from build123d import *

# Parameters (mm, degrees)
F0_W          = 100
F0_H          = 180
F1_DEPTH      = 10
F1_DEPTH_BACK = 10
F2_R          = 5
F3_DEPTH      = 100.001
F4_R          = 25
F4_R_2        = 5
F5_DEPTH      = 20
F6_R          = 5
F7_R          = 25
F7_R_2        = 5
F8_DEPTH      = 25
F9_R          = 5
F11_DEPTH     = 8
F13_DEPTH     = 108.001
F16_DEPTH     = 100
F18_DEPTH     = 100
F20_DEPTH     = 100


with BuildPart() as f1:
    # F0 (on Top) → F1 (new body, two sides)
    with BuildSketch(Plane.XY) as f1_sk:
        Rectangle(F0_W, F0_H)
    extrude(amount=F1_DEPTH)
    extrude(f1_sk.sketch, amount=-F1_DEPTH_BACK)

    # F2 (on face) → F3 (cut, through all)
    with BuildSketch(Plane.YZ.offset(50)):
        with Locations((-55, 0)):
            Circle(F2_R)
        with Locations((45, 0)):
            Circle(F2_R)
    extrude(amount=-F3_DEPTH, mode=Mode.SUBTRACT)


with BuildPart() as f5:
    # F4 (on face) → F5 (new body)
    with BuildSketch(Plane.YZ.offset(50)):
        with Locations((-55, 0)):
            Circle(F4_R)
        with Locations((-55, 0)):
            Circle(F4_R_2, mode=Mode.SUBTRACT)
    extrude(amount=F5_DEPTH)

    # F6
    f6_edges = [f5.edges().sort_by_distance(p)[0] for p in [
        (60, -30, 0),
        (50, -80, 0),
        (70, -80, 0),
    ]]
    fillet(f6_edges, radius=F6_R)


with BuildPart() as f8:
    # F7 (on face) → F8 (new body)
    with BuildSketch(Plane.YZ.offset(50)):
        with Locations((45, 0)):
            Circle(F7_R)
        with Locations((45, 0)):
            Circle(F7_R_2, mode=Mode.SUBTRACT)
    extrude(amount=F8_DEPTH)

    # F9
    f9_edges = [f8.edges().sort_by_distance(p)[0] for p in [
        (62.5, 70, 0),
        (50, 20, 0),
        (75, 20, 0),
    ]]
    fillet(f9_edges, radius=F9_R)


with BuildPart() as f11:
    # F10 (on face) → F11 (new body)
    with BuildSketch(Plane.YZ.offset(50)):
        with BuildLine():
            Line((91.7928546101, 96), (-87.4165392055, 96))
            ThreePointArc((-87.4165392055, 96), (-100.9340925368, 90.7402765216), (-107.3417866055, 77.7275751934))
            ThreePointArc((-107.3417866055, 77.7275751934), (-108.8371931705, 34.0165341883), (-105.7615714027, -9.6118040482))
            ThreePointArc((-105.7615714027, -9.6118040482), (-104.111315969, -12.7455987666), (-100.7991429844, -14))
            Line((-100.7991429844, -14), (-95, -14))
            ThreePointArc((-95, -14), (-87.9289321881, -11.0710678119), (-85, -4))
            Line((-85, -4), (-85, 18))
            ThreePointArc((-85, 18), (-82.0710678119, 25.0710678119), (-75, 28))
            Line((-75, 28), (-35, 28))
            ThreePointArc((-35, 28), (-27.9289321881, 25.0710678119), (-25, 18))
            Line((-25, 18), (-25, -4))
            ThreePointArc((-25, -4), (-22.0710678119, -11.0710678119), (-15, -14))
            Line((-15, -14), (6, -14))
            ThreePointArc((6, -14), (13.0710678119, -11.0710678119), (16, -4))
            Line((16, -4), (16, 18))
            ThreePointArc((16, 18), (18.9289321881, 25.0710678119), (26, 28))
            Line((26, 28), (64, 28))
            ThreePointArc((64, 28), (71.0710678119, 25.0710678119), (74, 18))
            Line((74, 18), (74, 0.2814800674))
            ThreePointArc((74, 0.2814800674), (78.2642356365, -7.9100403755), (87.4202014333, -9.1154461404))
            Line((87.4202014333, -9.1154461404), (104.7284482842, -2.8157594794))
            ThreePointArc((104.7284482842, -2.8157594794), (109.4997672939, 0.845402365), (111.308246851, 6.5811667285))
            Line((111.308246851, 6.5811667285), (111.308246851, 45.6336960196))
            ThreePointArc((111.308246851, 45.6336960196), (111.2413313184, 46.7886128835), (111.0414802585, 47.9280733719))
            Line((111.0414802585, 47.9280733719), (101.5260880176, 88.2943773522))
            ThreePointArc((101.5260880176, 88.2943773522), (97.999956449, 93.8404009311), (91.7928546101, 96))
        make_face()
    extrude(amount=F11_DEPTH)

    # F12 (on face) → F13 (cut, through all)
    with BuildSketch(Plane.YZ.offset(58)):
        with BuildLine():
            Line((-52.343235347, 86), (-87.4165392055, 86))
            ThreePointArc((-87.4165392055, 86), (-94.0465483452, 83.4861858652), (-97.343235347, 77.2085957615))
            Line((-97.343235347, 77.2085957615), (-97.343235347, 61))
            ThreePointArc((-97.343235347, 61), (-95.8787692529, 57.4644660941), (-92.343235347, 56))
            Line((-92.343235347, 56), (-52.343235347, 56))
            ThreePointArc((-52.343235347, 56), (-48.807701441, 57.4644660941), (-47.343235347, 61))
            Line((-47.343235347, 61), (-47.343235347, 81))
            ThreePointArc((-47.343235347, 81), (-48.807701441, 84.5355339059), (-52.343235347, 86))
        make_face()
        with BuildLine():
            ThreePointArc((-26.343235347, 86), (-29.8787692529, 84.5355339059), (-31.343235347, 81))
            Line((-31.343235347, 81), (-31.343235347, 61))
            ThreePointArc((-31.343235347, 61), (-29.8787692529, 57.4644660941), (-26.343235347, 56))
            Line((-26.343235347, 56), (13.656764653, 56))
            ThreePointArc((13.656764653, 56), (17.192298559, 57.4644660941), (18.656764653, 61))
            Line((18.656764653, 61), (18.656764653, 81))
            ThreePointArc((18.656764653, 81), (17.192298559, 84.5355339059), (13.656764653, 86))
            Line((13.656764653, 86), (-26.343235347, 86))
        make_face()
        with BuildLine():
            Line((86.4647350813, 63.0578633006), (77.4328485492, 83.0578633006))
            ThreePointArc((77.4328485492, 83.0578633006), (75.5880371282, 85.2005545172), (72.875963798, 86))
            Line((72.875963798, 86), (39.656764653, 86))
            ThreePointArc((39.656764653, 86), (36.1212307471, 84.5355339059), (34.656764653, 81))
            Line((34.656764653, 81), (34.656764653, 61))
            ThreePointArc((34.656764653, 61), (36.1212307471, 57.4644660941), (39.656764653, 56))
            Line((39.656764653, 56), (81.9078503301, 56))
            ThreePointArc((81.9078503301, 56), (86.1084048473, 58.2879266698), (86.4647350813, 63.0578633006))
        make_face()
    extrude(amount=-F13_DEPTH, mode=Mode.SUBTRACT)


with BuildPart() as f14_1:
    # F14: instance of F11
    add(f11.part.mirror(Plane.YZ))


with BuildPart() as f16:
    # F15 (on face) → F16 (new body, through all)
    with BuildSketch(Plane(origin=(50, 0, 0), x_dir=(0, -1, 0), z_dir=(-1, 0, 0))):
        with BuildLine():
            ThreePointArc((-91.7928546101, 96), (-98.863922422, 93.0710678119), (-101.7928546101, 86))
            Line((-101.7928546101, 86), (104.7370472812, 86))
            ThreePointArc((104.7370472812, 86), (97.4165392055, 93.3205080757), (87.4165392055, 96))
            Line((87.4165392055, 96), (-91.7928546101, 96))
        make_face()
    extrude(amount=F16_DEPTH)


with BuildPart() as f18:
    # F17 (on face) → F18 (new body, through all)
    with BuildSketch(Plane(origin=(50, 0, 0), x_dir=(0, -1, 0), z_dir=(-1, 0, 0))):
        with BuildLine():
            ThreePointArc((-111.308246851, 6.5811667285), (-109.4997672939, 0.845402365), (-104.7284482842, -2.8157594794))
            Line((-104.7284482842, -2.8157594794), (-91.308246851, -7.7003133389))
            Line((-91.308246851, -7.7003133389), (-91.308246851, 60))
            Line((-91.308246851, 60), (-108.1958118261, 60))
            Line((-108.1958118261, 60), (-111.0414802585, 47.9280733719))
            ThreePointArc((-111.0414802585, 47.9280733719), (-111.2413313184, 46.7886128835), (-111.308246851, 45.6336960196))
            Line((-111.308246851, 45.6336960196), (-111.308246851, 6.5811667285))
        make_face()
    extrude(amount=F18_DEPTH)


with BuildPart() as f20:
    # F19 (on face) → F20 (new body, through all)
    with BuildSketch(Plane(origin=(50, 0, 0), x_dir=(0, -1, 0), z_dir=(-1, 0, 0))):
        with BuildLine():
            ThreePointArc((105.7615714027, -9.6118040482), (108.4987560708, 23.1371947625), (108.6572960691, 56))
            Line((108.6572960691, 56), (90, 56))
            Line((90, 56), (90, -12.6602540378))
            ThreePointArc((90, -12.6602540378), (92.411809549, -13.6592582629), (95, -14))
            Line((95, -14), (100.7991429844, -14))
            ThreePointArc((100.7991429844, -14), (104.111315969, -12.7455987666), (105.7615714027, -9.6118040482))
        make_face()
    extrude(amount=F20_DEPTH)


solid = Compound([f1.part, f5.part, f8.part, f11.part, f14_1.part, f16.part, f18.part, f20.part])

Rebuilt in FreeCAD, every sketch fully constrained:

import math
import FreeCAD as App
import Part
import Sketcher

V = App.Vector
Q = App.Units.Quantity


def edges_at(feature, points):
    """Names of the edges that pass closest to the given points."""
    edges = feature.Shape.Edges
    near = lambda p: min(range(len(edges)), key=lambda i: edges[i].distToShape(Part.Vertex(*p))[0])
    return sorted({f"Edge{near(p) + 1}" for p in points})


def add_polygon(sketch, points):
    """Adds a closed chain of lines whose ends are joined by coincident constraints."""
    first, n = sketch.GeometryCount, len(points)
    for a, b in zip(points, points[1:] + points[:1]):
        sketch.addGeometry(Part.LineSegment(App.Vector(*a, 0), App.Vector(*b, 0)), False)
    for i in range(n):
        sketch.addConstraint(Sketcher.Constraint("Coincident", first + i, 2, first + (i + 1) % n, 1))

doc = App.newDocument("Part")
body = doc.addObject("PartDesign::Body", "Body")

sketch1 = body.newObject("Sketcher::SketchObject", "Sketch")
sketch1.AttachmentSupport = (doc.getObject("XY_Plane"), [""])
sketch1.MapMode = "FlatFace"
add_polygon(sketch1, [(-50, 90), (-50, -90), (50, -90), (50, 90)])
sketch1.addConstraint([
    Sketcher.Constraint("Vertical", 0),
    Sketcher.Constraint("Horizontal", 1),
    Sketcher.Constraint("Vertical", 2),
    Sketcher.Constraint("Horizontal", 3),
    Sketcher.Constraint("Symmetric", 0, 2, 2, 2, -1, 1),
    Sketcher.Constraint("DistanceX", 1, 1, 1, 2, Q("100 mm")),
    Sketcher.Constraint("DistanceY", 0, 2, 0, 1, Q("180 mm")),
])
pad1 = body.newObject("PartDesign::Pad", "Pad")
pad1.Profile = sketch1
pad1.Type = "TwoLengths"
pad1.Length = 10
pad1.Length2 = 10

sketch2 = body.newObject("Sketcher::SketchObject", "Sketch001")
sketch2.AttachmentSupport = (doc.getObject("YZ_Plane"), [""])
sketch2.MapMode = "FlatFace"
sketch2.AttachmentOffset = App.Placement(V(0, 0, 50), App.Rotation())
sketch2.addGeometry([
    Part.Circle(V(-55, 0, 0), V(0, 0, 1), 5),
    Part.Circle(V(45, 0, 0), V(0, 0, 1), 5),
], False)
sketch2.addConstraint([
    Sketcher.Constraint("Equal", 0, 1),
    Sketcher.Constraint("PointOnObject", 0, 3, -1),
    Sketcher.Constraint("PointOnObject", 1, 3, -1),
    Sketcher.Constraint("Diameter", 0, Q("10 mm")),
    Sketcher.Constraint("DistanceX", 0, 3, -1, 1, Q("55 mm")),
    Sketcher.Constraint("DistanceX", -1, 1, 1, 3, Q("45 mm")),
])
pocket1 = body.newObject("PartDesign::Pocket", "Pocket")
pocket1.Profile = sketch2
pocket1.Type = "ThroughAll"
body2 = doc.addObject("PartDesign::Body", "Body001")

sketch3 = body2.newObject("Sketcher::SketchObject", "Sketch002")
sketch3.AttachmentSupport = (doc.getObject("YZ_Plane001"), [""])
sketch3.MapMode = "FlatFace"
sketch3.AttachmentOffset = App.Placement(V(0, 0, 50), App.Rotation())
sketch3.addGeometry([
    Part.Circle(V(-55, 0, 0), V(0, 0, 1), 25),
    Part.Circle(V(-55, 0, 0), V(0, 0, 1), 5),
], False)
sketch3.addConstraint([
    Sketcher.Constraint("Coincident", 1, 3, 0, 3),
    Sketcher.Constraint("PointOnObject", 0, 3, -1),
    Sketcher.Constraint("Diameter", 0, Q("50 mm")),
    Sketcher.Constraint("Diameter", 1, Q("10 mm")),
    Sketcher.Constraint("DistanceX", 0, 3, -1, 1, Q("55 mm")),
])
pad2 = body2.newObject("PartDesign::Pad", "Pad001")
pad2.Profile = sketch3
pad2.Length = 20
doc.recompute()

fillet = body2.newObject("PartDesign::Fillet", "Fillet")
fillet.Base = (pad2, edges_at(pad2, [(60, -30, 0), (50, -80, 0), (70, -80, 0)]))
fillet.Radius = 5
body3 = doc.addObject("PartDesign::Body", "Body002")

sketch4 = body3.newObject("Sketcher::SketchObject", "Sketch003")
sketch4.AttachmentSupport = (doc.getObject("YZ_Plane002"), [""])
sketch4.MapMode = "FlatFace"
sketch4.AttachmentOffset = App.Placement(V(0, 0, 50), App.Rotation())
sketch4.addGeometry([
    Part.Circle(V(45, 0, 0), V(0, 0, 1), 25),
    Part.Circle(V(45, 0, 0), V(0, 0, 1), 5),
], False)
sketch4.addConstraint([
    Sketcher.Constraint("Coincident", 1, 3, 0, 3),
    Sketcher.Constraint("PointOnObject", 0, 3, -1),
    Sketcher.Constraint("Diameter", 0, Q("50 mm")),
    Sketcher.Constraint("Diameter", 1, Q("10 mm")),
    Sketcher.Constraint("DistanceX", -1, 1, 0, 3, Q("45 mm")),
])
pad3 = body3.newObject("PartDesign::Pad", "Pad002")
pad3.Profile = sketch4
pad3.Length = 25
doc.recompute()

fillet2 = body3.newObject("PartDesign::Fillet", "Fillet001")
fillet2.Base = (pad3, edges_at(pad3, [(62.5, 70, 0), (50, 20, 0), (75, 20, 0)]))
fillet2.Radius = 5
body4 = doc.addObject("PartDesign::Body", "Body003")

sketch5 = body4.newObject("Sketcher::SketchObject", "Sketch004")
sketch5.AttachmentSupport = (doc.getObject("YZ_Plane003"), [""])
sketch5.MapMode = "FlatFace"
sketch5.AttachmentOffset = App.Placement(V(0, 0, 50), App.Rotation())
sketch5.addGeometry([
    Part.LineSegment(V(91.8, 96, 0), V(-87.4, 96, 0)),
    Part.ArcOfCircle(Part.Circle(V(-87.4, 76, 0), V(0, 0, 1), 20), math.radians(90), math.radians(175)),
    Part.ArcOfCircle(Part.Circle(V(309.5, 41.6, 0), V(0, 0, 1), 418.4), math.radians(175.04), math.radians(187.03)),
    Part.ArcOfCircle(Part.Circle(V(-100.8, -9, 0), V(0, 0, 1), 5), math.radians(-173), math.radians(-90)),
    Part.LineSegment(V(-100.8, -14, 0), V(-95, -14, 0)),
    Part.ArcOfCircle(Part.Circle(V(-95, -4, 0), V(0, 0, 1), 10), math.radians(-90), math.radians(0)),
    Part.LineSegment(V(-85, -4, 0), V(-85, 18, 0)),
    Part.ArcOfCircle(Part.Circle(V(-75, 18, 0), V(0, 0, 1), 10), math.radians(90), math.radians(180)),
    Part.LineSegment(V(-75, 28, 0), V(-35, 28, 0)),
    Part.ArcOfCircle(Part.Circle(V(-35, 18, 0), V(0, 0, 1), 10), math.radians(0), math.radians(90)),
    Part.LineSegment(V(-25, 18, 0), V(-25, -4, 0)),
    Part.ArcOfCircle(Part.Circle(V(-15, -4, 0), V(0, 0, 1), 10), math.radians(180), math.radians(270)),
    Part.LineSegment(V(-15, -14, 0), V(6, -14, 0)),
    Part.ArcOfCircle(Part.Circle(V(6, -4, 0), V(0, 0, 1), 10), math.radians(-90), math.radians(0)),
    Part.LineSegment(V(16, -4, 0), V(16, 18, 0)),
    Part.ArcOfCircle(Part.Circle(V(26, 18, 0), V(0, 0, 1), 10), math.radians(90), math.radians(180)),
    Part.LineSegment(V(26, 28, 0), V(64, 28, 0)),
    Part.ArcOfCircle(Part.Circle(V(64, 18, 0), V(0, 0, 1), 10), math.radians(0), math.radians(90)),
    Part.LineSegment(V(74, 18, 0), V(74, 0.3, 0)),
    Part.ArcOfCircle(Part.Circle(V(84, 0.3, 0), V(0, 0, 1), 10), math.radians(180), math.radians(290)),
    Part.LineSegment(V(87.4, -9.1, 0), V(104.7, -2.8, 0)),
    Part.ArcOfCircle(Part.Circle(V(101.3, 6.6, 0), V(0, 0, 1), 10), math.radians(-70), math.radians(0)),
    Part.LineSegment(V(111.3, 6.6, 0), V(111.3, 45.6, 0)),
    Part.ArcOfCircle(Part.Circle(V(101.3, 45.6, 0), V(0, 0, 1), 10), math.radians(0), math.radians(13.26)),
    Part.LineSegment(V(111, 47.9, 0), V(101.5, 88.3, 0)),
    Part.ArcOfCircle(Part.Circle(V(91.8, 86, 0), V(0, 0, 1), 10), math.radians(13), math.radians(90)),
], False)
sketch5.addConstraint([
    Sketcher.Constraint("Tangent", 0, 2, 1, 1),
    Sketcher.Constraint("Tangent", 1, 2, 2, 1),
    Sketcher.Constraint("Tangent", 2, 2, 3, 1),
    Sketcher.Constraint("Tangent", 3, 2, 4, 1),
    Sketcher.Constraint("Tangent", 4, 2, 5, 1),
    Sketcher.Constraint("Tangent", 5, 2, 6, 1),
    Sketcher.Constraint("Tangent", 6, 2, 7, 2),
    Sketcher.Constraint("Tangent", 7, 1, 8, 1),
    Sketcher.Constraint("Tangent", 8, 2, 9, 2),
    Sketcher.Constraint("Tangent", 9, 1, 10, 1),
    Sketcher.Constraint("Tangent", 10, 2, 11, 1),
    Sketcher.Constraint("Tangent", 11, 2, 12, 1),
    Sketcher.Constraint("Tangent", 12, 2, 13, 1),
    Sketcher.Constraint("Tangent", 13, 2, 14, 1),
    Sketcher.Constraint("Tangent", 14, 2, 15, 2),
    Sketcher.Constraint("Tangent", 15, 1, 16, 1),
    Sketcher.Constraint("Tangent", 16, 2, 17, 2),
    Sketcher.Constraint("Tangent", 17, 1, 18, 1),
    Sketcher.Constraint("Tangent", 18, 2, 19, 1),
    Sketcher.Constraint("Tangent", 19, 2, 20, 1),
    Sketcher.Constraint("Tangent", 20, 2, 21, 1),
    Sketcher.Constraint("Tangent", 21, 2, 22, 1),
    Sketcher.Constraint("Tangent", 22, 2, 23, 1),
    Sketcher.Constraint("Tangent", 23, 2, 24, 1),
    Sketcher.Constraint("Tangent", 24, 2, 25, 1),
    Sketcher.Constraint("Tangent", 25, 2, 0, 1),
    Sketcher.Constraint("Horizontal", 0),
    Sketcher.Constraint("Horizontal", 4),
    Sketcher.Constraint("Vertical", 6),
    Sketcher.Constraint("Horizontal", 8),
    Sketcher.Constraint("Vertical", 10),
    Sketcher.Constraint("Horizontal", 12),
    Sketcher.Constraint("Vertical", 14),
    Sketcher.Constraint("Horizontal", 16),
    Sketcher.Constraint("Vertical", 18),
    Sketcher.Constraint("Vertical", 22),
    Sketcher.Constraint("Equal", 5, 7),
    Sketcher.Constraint("Equal", 7, 9),
    Sketcher.Constraint("Equal", 9, 11),
    Sketcher.Constraint("Equal", 11, 13),
    Sketcher.Constraint("Equal", 13, 15),
    Sketcher.Constraint("Equal", 15, 17),
    Sketcher.Constraint("Equal", 17, 19),
    Sketcher.Constraint("Equal", 19, 21),
    Sketcher.Constraint("Equal", 21, 23),
    Sketcher.Constraint("Equal", 23, 25),
    Sketcher.Constraint("Horizontal", 5, 3, 11, 3),
    Sketcher.Constraint("Horizontal", 9, 3, 15, 3),
    Sketcher.Constraint("Radius", 1, Q("20 mm")),
    Sketcher.Constraint("Radius", 3, Q("5 mm")),
    Sketcher.Constraint("Radius", 5, Q("10 mm")),
    Sketcher.Constraint("DistanceX", 8, 1, 8, 2, Q("40 mm")),
    Sketcher.Constraint("DistanceX", 12, 1, 12, 2, Q("21 mm")),
    Sketcher.Constraint("DistanceX", 16, 1, 16, 2, Q("38 mm")),
    Sketcher.Constraint("DistanceY", 6, 1, 6, 2, Q("22 mm")),
    Sketcher.Constraint("Angle", 20, Q("20 deg")),
    Sketcher.Constraint("DistanceY", -1, 1, 1, 3, Q("76 mm")),
    Sketcher.Constraint("DistanceY", 3, 3, -1, 1, Q("9 mm")),
    Sketcher.Constraint("DistanceX", 5, 3, -1, 1, Q("95 mm")),
    Sketcher.Constraint("Radius", 2, Q("418.413143 mm")),
    Sketcher.Constraint("DistanceY", 18, 2, 18, 1, Q("17.71852 mm")),
    Sketcher.Constraint("DistanceY", 22, 1, 22, 2, Q("39.052529 mm")),
    Sketcher.Constraint("Distance", 20, Q("18.419052 mm")),
    Sketcher.Constraint("DistanceX", 0, 2, 0, 1, Q("179.209394 mm")),
    Sketcher.Constraint("DistanceX", 4, 1, 4, 2, Q("5.799143 mm")),
    Sketcher.Constraint("DistanceX", 1, 3, -1, 1, Q("87.416539 mm")),
])
pad4 = body4.newObject("PartDesign::Pad", "Pad003")
pad4.Profile = sketch5
pad4.Length = 8

sketch6 = body4.newObject("Sketcher::SketchObject", "Sketch005")
sketch6.AttachmentSupport = (doc.getObject("YZ_Plane003"), [""])
sketch6.MapMode = "FlatFace"
sketch6.AttachmentOffset = App.Placement(V(0, 0, 58), App.Rotation())
sketch6.addGeometry([
    Part.LineSegment(V(-52, 86, 0), V(-87, 86, 0)),
    Part.ArcOfCircle(Part.Circle(V(-87, 76, 0), V(0, 0, 1), 10), math.radians(90), math.radians(173)),
    Part.LineSegment(V(-97, 77, 0), V(-97, 61, 0)),
    Part.ArcOfCircle(Part.Circle(V(-92, 61, 0), V(0, 0, 1), 5), math.radians(180), math.radians(270)),
    Part.LineSegment(V(-92, 56, 0), V(-52, 56, 0)),
    Part.ArcOfCircle(Part.Circle(V(-52, 61, 0), V(0, 0, 1), 5), math.radians(-90), math.radians(0)),
    Part.LineSegment(V(-47, 61, 0), V(-47, 81, 0)),
    Part.ArcOfCircle(Part.Circle(V(-52, 81, 0), V(0, 0, 1), 5), math.radians(0), math.radians(90)),
    Part.ArcOfCircle(Part.Circle(V(-26, 81, 0), V(0, 0, 1), 5), math.radians(90), math.radians(180)),
    Part.LineSegment(V(-31, 81, 0), V(-31, 61, 0)),
    Part.ArcOfCircle(Part.Circle(V(-26, 61, 0), V(0, 0, 1), 5), math.radians(180), math.radians(270)),
    Part.LineSegment(V(-26, 56, 0), V(14, 56, 0)),
    Part.ArcOfCircle(Part.Circle(V(14, 61, 0), V(0, 0, 1), 5), math.radians(-90), math.radians(0)),
    Part.LineSegment(V(19, 61, 0), V(19, 81, 0)),
    Part.ArcOfCircle(Part.Circle(V(14, 81, 0), V(0, 0, 1), 5), math.radians(0), math.radians(90)),
    Part.LineSegment(V(14, 86, 0), V(-26, 86, 0)),
    Part.LineSegment(V(86, 63, 0), V(77, 83, 0)),
    Part.ArcOfCircle(Part.Circle(V(73, 81, 0), V(0, 0, 1), 5), math.radians(24), math.radians(90)),
    Part.LineSegment(V(73, 86, 0), V(40, 86, 0)),
    Part.ArcOfCircle(Part.Circle(V(40, 81, 0), V(0, 0, 1), 5), math.radians(90), math.radians(180)),
    Part.LineSegment(V(35, 81, 0), V(35, 61, 0)),
    Part.ArcOfCircle(Part.Circle(V(40, 61, 0), V(0, 0, 1), 5), math.radians(180), math.radians(270)),
    Part.LineSegment(V(40, 56, 0), V(82, 56, 0)),
    Part.ArcOfCircle(Part.Circle(V(82, 61, 0), V(0, 0, 1), 5), math.radians(-90), math.radians(24)),
], False)
sketch6.addConstraint([
    Sketcher.Constraint("Tangent", 0, 2, 1, 1),
    Sketcher.Constraint("Coincident", 1, 2, 2, 1),
    Sketcher.Constraint("Tangent", 2, 2, 3, 1),
    Sketcher.Constraint("Tangent", 3, 2, 4, 1),
    Sketcher.Constraint("Tangent", 4, 2, 5, 1),
    Sketcher.Constraint("Tangent", 5, 2, 6, 1),
    Sketcher.Constraint("Tangent", 6, 2, 7, 1),
    Sketcher.Constraint("Tangent", 7, 2, 0, 1),
    Sketcher.Constraint("Tangent", 8, 2, 9, 1),
    Sketcher.Constraint("Tangent", 9, 2, 10, 1),
    Sketcher.Constraint("Tangent", 10, 2, 11, 1),
    Sketcher.Constraint("Tangent", 11, 2, 12, 1),
    Sketcher.Constraint("Tangent", 12, 2, 13, 1),
    Sketcher.Constraint("Tangent", 13, 2, 14, 1),
    Sketcher.Constraint("Tangent", 14, 2, 15, 1),
    Sketcher.Constraint("Tangent", 15, 2, 8, 1),
    Sketcher.Constraint("Tangent", 16, 2, 17, 1),
    Sketcher.Constraint("Tangent", 17, 2, 18, 1),
    Sketcher.Constraint("Tangent", 18, 2, 19, 1),
    Sketcher.Constraint("Tangent", 19, 2, 20, 1),
    Sketcher.Constraint("Tangent", 20, 2, 21, 1),
    Sketcher.Constraint("Tangent", 21, 2, 22, 1),
    Sketcher.Constraint("Tangent", 22, 2, 23, 1),
    Sketcher.Constraint("Tangent", 23, 2, 16, 1),
    Sketcher.Constraint("Horizontal", 0),
    Sketcher.Constraint("Vertical", 2),
    Sketcher.Constraint("Horizontal", 4),
    Sketcher.Constraint("Vertical", 6),
    Sketcher.Constraint("Vertical", 9),
    Sketcher.Constraint("Horizontal", 11),
    Sketcher.Constraint("Vertical", 13),
    Sketcher.Constraint("Horizontal", 15),
    Sketcher.Constraint("Horizontal", 18),
    Sketcher.Constraint("Vertical", 20),
    Sketcher.Constraint("Horizontal", 22),
    Sketcher.Constraint("Equal", 3, 5),
    Sketcher.Constraint("Equal", 5, 7),
    Sketcher.Constraint("Equal", 7, 8),
    Sketcher.Constraint("Equal", 8, 10),
    Sketcher.Constraint("Equal", 10, 12),
    Sketcher.Constraint("Equal", 12, 14),
    Sketcher.Constraint("Equal", 14, 17),
    Sketcher.Constraint("Equal", 17, 19),
    Sketcher.Constraint("Equal", 19, 21),
    Sketcher.Constraint("Equal", 21, 23),
    Sketcher.Constraint("Horizontal", 7, 3, 8, 3),
    Sketcher.Constraint("Horizontal", 5, 3, 10, 3),
    Sketcher.Constraint("Horizontal", 14, 3, 17, 3),
    Sketcher.Constraint("Horizontal", 12, 3, 21, 3),
    Sketcher.Constraint("Equal", 4, 11),
    Sketcher.Constraint("Radius", 1, Q("10 mm")),
    Sketcher.Constraint("Radius", 3, Q("5 mm")),
    Sketcher.Constraint("DistanceX", 4, 1, 4, 2, Q("40 mm")),
    Sketcher.Constraint("DistanceY", 6, 1, 6, 2, Q("20 mm")),
    Sketcher.Constraint("DistanceY", -1, 1, 1, 3, Q("76 mm")),
    Sketcher.Constraint("DistanceX", 7, 3, 8, 3, Q("26 mm")),
    Sketcher.Constraint("DistanceX", 14, 3, 19, 3, Q("26 mm")),
    Sketcher.Constraint("DistanceX", 18, 2, 18, 1, Q("33.219199 mm")),
    Sketcher.Constraint("DistanceX", 16, 2, 23, 3, Q("4.475002 mm")),
    Sketcher.Constraint("DistanceX", 0, 2, 0, 1, Q("35.073304 mm")),
    Sketcher.Constraint("DistanceX", 1, 3, -1, 1, Q("87.416539 mm")),
])
pocket2 = body4.newObject("PartDesign::Pocket", "Pocket001")
pocket2.Profile = sketch6
pocket2.Type = "ThroughAll"
body5 = doc.addObject("PartDesign::Body", "Body004")
doc.recompute()

mirroring = doc.addObject("Part::Mirroring", "Mirroring")
mirroring.Source = body4
mirroring.Base = V(0, 0, 0)
mirroring.Normal = V(1, 0, 0)
body5.BaseFeature = mirroring
doc.recompute()
body6 = doc.addObject("PartDesign::Body", "Body005")

sketch7 = body6.newObject("Sketcher::SketchObject", "Sketch006")
sketch7.AttachmentSupport = (doc.getObject("YZ_Plane005"), [""])
sketch7.MapMode = "FlatFace"
sketch7.AttachmentOffset = App.Placement(V(0, 0, 50), App.Rotation())
sketch7.addGeometry([
    Part.ArcOfCircle(Part.Circle(V(92, 86, 0), V(0, 0, 1), 10), math.radians(0), math.radians(90)),
    Part.LineSegment(V(102, 86, 0), V(-105, 86, 0)),
    Part.ArcOfCircle(Part.Circle(V(-87, 76, 0), V(0, 0, 1), 20), math.radians(90), math.radians(150)),
    Part.LineSegment(V(-87, 96, 0), V(92, 96, 0)),
], False)
sketch7.addConstraint([
    Sketcher.Constraint("Coincident", 0, 1, 1, 1),
    Sketcher.Constraint("Coincident", 1, 2, 2, 2),
    Sketcher.Constraint("Tangent", 2, 1, 3, 1),
    Sketcher.Constraint("Tangent", 3, 2, 0, 2),
    Sketcher.Constraint("Horizontal", 1),
    Sketcher.Constraint("Horizontal", 3),
    Sketcher.Constraint("Radius", 0, Q("10 mm")),
    Sketcher.Constraint("Radius", 2, Q("20 mm")),
    Sketcher.Constraint("DistanceY", -1, 1, 0, 3, Q("86 mm")),
    Sketcher.Constraint("DistanceY", -1, 1, 0, 1, Q("86 mm")),
    Sketcher.Constraint("DistanceX", 1, 2, 1, 1, Q("206.529902 mm")),
    Sketcher.Constraint("DistanceX", 2, 3, -1, 1, Q("87.416539 mm")),
])
pad5 = body6.newObject("PartDesign::Pad", "Pad004")
pad5.Profile = sketch7
pad5.Length = 100
pad5.Reversed = True
body7 = doc.addObject("PartDesign::Body", "Body006")

sketch8 = body7.newObject("Sketcher::SketchObject", "Sketch007")
sketch8.AttachmentSupport = (doc.getObject("YZ_Plane006"), [""])
sketch8.MapMode = "FlatFace"
sketch8.AttachmentOffset = App.Placement(V(0, 0, 50), App.Rotation())
sketch8.addGeometry([
    Part.ArcOfCircle(Part.Circle(V(101.3, 6.6, 0), V(0, 0, 1), 10), math.radians(-70), math.radians(0)),
    Part.LineSegment(V(104.7, -2.8, 0), V(91.3, -7.7, 0)),
    Part.LineSegment(V(91.3, -7.7, 0), V(91.3, 60, 0)),
    Part.LineSegment(V(91.3, 60, 0), V(108.2, 60, 0)),
    Part.LineSegment(V(108.2, 60, 0), V(111, 47.9, 0)),
    Part.ArcOfCircle(Part.Circle(V(101.3, 45.6, 0), V(0, 0, 1), 10), math.radians(0), math.radians(13.26)),
    Part.LineSegment(V(111.3, 45.6, 0), V(111.3, 6.6, 0)),
], False)
sketch8.addConstraint([
    Sketcher.Constraint("Tangent", 0, 1, 1, 1),
    Sketcher.Constraint("Coincident", 1, 2, 2, 1),
    Sketcher.Constraint("Coincident", 2, 2, 3, 1),
    Sketcher.Constraint("Coincident", 3, 2, 4, 1),
    Sketcher.Constraint("Tangent", 4, 2, 5, 2),
    Sketcher.Constraint("Tangent", 5, 1, 6, 1),
    Sketcher.Constraint("Tangent", 6, 2, 0, 2),
    Sketcher.Constraint("Vertical", 2),
    Sketcher.Constraint("Horizontal", 3),
    Sketcher.Constraint("Vertical", 6),
    Sketcher.Constraint("Equal", 0, 5),
    Sketcher.Constraint("Radius", 0, Q("10 mm")),
    Sketcher.Constraint("Angle", 1, Q("-160 deg")),
    Sketcher.Constraint("DistanceY", -1, 1, 2, 2, Q("60 mm")),
    Sketcher.Constraint("DistanceX", 1, 2, 0, 3, Q("10 mm")),
    Sketcher.Constraint("DistanceY", 6, 2, 6, 1, Q("39.052529 mm")),
    Sketcher.Constraint("Distance", 4, Q("12.402792 mm")),
    Sketcher.Constraint("DistanceX", 3, 1, 3, 2, Q("16.887565 mm")),
    Sketcher.Constraint("DistanceX", -1, 1, 0, 1, Q("104.728448 mm")),
])
pad6 = body7.newObject("PartDesign::Pad", "Pad005")
pad6.Profile = sketch8
pad6.Length = 100
pad6.Reversed = True
body8 = doc.addObject("PartDesign::Body", "Body007")

sketch9 = body8.newObject("Sketcher::SketchObject", "Sketch008")
sketch9.AttachmentSupport = (doc.getObject("YZ_Plane007"), [""])
sketch9.MapMode = "FlatFace"
sketch9.AttachmentOffset = App.Placement(V(0, 0, 50), App.Rotation())
sketch9.addGeometry([
    Part.ArcOfCircle(Part.Circle(V(310, 42, 0), V(0, 0, 1), 418), math.radians(178.03), math.radians(187.03)),
    Part.LineSegment(V(-109, 56, 0), V(-90, 56, 0)),
    Part.LineSegment(V(-90, 56, 0), V(-90, -13, 0)),
    Part.ArcOfCircle(Part.Circle(V(-95, -4, 0), V(0, 0, 1), 10), math.radians(-90), math.radians(-60)),
    Part.LineSegment(V(-95, -14, 0), V(-101, -14, 0)),
    Part.ArcOfCircle(Part.Circle(V(-101, -9, 0), V(0, 0, 1), 5), math.radians(-173), math.radians(-90)),
], False)
sketch9.addConstraint([
    Sketcher.Constraint("Coincident", 0, 1, 1, 1),
    Sketcher.Constraint("Coincident", 1, 2, 2, 1),
    Sketcher.Constraint("Coincident", 2, 2, 3, 2),
    Sketcher.Constraint("Tangent", 3, 1, 4, 1),
    Sketcher.Constraint("Tangent", 4, 2, 5, 2),
    Sketcher.Constraint("Tangent", 5, 1, 0, 2),
    Sketcher.Constraint("Horizontal", 1),
    Sketcher.Constraint("Vertical", 2),
    Sketcher.Constraint("Horizontal", 4),
    Sketcher.Constraint("Radius", 3, Q("10 mm")),
    Sketcher.Constraint("Radius", 5, Q("5 mm")),
    Sketcher.Constraint("DistanceX", 3, 3, -1, 1, Q("95 mm")),
    Sketcher.Constraint("DistanceY", 3, 3, -1, 1, Q("4 mm")),
    Sketcher.Constraint("DistanceX", 1, 2, -1, 1, Q("90 mm")),
    Sketcher.Constraint("DistanceY", -1, 1, 1, 2, Q("56 mm")),
    Sketcher.Constraint("Radius", 0, Q("418.413143 mm")),
    Sketcher.Constraint("DistanceX", 1, 1, 1, 2, Q("18.657296 mm")),
    Sketcher.Constraint("DistanceX", 4, 2, 4, 1, Q("5.799143 mm")),
])
pad7 = body8.newObject("PartDesign::Pad", "Pad006")
pad7.Profile = sketch9
pad7.Length = 100
pad7.Reversed = True
mirroring.Visibility = False

doc.recompute()
